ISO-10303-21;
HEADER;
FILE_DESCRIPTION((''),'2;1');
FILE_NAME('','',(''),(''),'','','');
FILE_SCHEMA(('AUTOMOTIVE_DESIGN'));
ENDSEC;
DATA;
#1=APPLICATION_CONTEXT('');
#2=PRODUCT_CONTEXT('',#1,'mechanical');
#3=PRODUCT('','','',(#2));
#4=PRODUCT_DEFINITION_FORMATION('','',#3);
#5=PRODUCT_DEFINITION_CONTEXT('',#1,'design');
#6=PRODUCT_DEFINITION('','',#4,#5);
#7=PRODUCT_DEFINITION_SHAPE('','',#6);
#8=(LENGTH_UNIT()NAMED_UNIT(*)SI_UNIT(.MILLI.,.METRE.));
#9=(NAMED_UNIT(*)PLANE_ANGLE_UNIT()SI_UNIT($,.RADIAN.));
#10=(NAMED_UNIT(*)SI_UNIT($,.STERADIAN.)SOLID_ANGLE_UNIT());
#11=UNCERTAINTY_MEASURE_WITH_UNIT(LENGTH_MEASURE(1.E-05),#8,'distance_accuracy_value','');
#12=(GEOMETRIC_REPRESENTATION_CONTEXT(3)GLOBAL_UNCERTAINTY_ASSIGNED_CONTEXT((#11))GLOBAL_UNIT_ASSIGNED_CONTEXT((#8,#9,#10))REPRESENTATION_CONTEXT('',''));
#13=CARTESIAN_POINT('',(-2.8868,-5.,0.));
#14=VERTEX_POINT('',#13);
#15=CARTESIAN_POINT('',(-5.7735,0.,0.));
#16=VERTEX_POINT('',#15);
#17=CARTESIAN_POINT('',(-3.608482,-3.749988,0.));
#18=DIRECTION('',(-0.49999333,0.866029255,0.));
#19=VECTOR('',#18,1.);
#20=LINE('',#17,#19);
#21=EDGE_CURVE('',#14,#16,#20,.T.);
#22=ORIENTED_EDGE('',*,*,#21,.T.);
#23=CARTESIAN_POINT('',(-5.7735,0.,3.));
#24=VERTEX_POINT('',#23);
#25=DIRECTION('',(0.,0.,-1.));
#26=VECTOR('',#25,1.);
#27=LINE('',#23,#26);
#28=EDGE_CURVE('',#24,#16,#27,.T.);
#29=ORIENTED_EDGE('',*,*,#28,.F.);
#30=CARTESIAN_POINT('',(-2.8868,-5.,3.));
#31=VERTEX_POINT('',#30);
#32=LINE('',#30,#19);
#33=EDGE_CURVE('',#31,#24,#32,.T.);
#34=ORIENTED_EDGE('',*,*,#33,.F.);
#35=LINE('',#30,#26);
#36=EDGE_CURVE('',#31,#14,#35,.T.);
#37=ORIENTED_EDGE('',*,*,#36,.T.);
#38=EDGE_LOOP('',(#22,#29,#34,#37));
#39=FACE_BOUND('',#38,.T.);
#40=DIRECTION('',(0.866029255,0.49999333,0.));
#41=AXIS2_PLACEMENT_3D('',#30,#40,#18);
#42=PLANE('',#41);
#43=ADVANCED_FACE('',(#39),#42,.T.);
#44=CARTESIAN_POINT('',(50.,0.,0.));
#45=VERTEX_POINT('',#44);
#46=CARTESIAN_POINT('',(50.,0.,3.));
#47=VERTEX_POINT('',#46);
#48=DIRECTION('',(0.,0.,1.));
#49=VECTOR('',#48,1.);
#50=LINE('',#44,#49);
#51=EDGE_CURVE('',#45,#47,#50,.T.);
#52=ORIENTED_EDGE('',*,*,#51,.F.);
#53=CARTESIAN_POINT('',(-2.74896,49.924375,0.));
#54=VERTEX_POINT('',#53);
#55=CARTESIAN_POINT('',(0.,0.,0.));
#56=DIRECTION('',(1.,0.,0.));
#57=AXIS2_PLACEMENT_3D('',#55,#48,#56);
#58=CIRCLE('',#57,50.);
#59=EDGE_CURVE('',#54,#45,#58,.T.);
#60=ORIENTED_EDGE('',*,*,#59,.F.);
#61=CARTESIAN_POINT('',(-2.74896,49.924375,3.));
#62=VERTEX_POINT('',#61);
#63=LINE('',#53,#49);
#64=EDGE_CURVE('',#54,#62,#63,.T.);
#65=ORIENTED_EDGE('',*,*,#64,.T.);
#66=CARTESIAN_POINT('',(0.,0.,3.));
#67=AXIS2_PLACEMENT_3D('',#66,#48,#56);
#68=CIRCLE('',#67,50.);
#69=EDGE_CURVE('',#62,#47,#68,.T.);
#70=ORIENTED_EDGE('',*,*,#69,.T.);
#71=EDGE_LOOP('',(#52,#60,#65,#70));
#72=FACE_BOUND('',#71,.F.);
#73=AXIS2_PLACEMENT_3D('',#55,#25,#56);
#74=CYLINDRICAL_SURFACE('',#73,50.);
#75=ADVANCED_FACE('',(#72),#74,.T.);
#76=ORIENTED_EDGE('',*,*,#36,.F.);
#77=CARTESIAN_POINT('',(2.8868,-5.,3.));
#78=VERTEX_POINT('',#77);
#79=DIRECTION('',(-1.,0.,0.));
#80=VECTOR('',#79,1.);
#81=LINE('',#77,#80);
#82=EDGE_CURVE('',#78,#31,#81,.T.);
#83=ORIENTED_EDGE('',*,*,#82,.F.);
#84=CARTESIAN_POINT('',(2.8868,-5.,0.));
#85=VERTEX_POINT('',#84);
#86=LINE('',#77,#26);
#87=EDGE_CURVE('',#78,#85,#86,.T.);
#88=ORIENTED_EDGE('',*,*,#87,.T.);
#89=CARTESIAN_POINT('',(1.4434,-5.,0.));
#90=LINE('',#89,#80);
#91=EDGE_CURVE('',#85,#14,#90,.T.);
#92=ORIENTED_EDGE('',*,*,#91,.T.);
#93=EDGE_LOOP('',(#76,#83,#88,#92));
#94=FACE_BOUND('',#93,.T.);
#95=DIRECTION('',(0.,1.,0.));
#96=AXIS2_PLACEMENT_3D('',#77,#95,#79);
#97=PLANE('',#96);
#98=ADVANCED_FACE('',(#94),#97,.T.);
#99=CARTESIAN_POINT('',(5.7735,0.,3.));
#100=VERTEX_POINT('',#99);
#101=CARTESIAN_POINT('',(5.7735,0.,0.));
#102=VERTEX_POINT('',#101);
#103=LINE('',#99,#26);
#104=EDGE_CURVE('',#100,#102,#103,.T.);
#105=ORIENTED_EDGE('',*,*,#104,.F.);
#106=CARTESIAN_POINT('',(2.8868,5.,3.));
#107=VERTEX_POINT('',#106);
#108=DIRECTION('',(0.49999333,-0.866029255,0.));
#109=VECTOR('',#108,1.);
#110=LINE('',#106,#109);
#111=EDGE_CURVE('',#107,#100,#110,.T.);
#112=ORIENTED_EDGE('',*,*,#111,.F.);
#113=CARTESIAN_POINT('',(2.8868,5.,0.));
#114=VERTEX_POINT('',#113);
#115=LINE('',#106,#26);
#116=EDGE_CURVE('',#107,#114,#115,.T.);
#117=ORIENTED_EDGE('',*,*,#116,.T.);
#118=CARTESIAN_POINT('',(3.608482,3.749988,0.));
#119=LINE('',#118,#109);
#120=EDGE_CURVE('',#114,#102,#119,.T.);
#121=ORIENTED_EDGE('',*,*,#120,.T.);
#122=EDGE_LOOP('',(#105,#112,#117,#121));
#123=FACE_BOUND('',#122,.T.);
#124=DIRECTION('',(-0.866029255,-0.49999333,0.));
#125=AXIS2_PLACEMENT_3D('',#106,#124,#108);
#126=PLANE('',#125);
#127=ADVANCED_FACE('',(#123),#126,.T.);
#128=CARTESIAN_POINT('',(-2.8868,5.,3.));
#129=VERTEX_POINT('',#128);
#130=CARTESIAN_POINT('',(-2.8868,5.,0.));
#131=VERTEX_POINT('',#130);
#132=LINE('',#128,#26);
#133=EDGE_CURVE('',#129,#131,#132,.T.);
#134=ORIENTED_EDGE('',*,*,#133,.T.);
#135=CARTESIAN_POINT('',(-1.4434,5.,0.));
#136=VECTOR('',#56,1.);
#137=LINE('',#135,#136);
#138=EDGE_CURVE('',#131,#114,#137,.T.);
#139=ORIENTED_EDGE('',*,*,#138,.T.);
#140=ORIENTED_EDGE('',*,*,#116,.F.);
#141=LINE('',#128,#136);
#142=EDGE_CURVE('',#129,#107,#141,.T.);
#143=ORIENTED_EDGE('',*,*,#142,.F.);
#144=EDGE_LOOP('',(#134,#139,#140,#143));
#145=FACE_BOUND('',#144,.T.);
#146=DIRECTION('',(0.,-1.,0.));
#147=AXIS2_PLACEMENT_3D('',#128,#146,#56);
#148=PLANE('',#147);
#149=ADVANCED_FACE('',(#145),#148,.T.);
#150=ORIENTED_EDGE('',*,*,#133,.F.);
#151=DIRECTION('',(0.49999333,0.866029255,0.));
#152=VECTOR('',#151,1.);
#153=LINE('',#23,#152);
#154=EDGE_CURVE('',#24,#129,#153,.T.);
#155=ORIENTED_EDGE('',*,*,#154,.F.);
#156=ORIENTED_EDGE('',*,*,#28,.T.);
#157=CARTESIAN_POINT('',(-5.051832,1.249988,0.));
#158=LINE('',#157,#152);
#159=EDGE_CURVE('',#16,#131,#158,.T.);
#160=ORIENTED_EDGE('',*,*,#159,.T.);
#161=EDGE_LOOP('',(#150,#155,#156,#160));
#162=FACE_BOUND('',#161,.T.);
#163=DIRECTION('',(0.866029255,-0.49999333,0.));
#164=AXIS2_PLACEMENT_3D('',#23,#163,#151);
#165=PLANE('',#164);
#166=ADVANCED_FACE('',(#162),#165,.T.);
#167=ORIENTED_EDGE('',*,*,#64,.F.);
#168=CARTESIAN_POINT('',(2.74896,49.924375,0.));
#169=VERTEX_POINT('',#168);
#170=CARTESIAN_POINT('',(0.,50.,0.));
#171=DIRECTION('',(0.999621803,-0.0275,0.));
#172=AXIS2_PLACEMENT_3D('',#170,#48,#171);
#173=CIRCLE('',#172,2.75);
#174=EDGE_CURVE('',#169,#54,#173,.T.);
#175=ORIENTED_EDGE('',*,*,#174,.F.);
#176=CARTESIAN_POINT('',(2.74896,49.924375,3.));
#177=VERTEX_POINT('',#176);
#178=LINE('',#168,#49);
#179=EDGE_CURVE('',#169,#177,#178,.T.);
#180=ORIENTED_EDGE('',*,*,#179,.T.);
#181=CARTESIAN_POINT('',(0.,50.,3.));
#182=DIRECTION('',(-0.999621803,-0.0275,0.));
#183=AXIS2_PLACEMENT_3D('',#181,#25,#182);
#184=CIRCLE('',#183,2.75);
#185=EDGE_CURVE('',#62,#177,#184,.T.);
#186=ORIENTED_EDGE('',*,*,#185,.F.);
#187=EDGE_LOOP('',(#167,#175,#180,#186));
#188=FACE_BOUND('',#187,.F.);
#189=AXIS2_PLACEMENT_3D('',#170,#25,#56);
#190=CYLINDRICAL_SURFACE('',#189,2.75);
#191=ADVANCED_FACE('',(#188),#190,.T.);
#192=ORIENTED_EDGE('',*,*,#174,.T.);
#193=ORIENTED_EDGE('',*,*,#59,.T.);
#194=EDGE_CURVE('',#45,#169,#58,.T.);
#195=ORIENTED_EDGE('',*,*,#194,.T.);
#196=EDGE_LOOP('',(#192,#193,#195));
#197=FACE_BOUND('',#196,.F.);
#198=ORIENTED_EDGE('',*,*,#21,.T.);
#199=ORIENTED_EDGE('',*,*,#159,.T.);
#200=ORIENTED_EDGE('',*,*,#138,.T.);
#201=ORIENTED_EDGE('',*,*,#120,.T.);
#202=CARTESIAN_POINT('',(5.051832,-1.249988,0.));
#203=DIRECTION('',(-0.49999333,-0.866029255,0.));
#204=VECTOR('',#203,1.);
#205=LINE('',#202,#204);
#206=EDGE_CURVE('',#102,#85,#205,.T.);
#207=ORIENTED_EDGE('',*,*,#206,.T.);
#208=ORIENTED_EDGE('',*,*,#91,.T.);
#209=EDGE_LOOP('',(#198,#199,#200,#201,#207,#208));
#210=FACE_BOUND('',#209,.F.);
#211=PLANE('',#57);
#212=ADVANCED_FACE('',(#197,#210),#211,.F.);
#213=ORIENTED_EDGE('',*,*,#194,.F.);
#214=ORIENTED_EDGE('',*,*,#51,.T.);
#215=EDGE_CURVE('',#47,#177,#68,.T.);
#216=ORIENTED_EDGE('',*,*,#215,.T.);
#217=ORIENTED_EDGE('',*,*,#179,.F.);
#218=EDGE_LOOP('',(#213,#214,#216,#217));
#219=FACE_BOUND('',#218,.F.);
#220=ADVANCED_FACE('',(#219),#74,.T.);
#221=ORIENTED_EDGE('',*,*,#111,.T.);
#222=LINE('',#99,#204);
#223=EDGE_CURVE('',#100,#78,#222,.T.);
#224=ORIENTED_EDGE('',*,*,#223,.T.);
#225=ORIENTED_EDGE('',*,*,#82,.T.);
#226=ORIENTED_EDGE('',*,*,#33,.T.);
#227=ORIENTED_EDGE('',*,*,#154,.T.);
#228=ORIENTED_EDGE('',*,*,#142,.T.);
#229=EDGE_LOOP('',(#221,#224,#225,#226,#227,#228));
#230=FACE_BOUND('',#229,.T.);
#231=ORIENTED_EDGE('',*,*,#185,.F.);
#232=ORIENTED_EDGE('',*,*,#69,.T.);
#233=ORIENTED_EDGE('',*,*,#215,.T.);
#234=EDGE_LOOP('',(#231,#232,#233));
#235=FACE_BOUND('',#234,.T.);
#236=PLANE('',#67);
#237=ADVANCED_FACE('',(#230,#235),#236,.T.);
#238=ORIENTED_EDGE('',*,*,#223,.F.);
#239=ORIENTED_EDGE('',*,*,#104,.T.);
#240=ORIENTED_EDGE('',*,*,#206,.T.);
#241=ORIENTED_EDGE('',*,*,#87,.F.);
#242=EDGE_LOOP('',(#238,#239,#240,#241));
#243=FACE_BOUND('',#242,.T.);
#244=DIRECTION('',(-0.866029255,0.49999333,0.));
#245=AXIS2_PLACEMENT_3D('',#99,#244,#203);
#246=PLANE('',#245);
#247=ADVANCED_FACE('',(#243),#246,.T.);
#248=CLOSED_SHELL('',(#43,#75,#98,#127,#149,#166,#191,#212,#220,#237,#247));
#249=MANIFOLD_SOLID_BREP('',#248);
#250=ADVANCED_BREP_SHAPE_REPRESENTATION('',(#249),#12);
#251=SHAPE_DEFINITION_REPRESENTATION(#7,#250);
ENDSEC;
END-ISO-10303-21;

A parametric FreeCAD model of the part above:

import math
import FreeCAD as App
import Part
import Sketcher
Q = App.Units.Quantity


def add_polygon(sketch, points):
    """Adds a closed chain of lines whose ends are joined by coincident constraints."""
    first, n = sketch.GeometryCount, len(points)
    for a, b in zip(points, points[1:] + points[:1]):
        sketch.addGeometry(Part.LineSegment(App.Vector(*a, 0), App.Vector(*b, 0)), False)
    for i in range(n):
        sketch.addConstraint(Sketcher.Constraint("Coincident", first + i, 2, first + (i + 1) % n, 1))

doc = App.newDocument("Part")
body = doc.addObject("PartDesign::Body", "Body")

# Sketch on XY plane
sketch1 = doc.addObject("Sketcher::SketchObject", "Sketch")
body.addObject(sketch1)
sketch1.AttachmentSupport = (doc.XY_Plane, [""])
sketch1.MapMode = "FlatFace"
sketch1.addGeometry([
    Part.ArcOfCircle(Part.Circle(App.Vector(0, 0, 0), App.Vector(0, 0, 1), 50), math.radians(93.151665), math.radians(446.848335)),
    Part.ArcOfCircle(Part.Circle(App.Vector(0, 50, 0), App.Vector(0, 0, 1), 2.75), math.radians(-1.575833), math.radians(181.575833)),
], False)
sketch1.addConstraint([
    Sketcher.Constraint("Coincident", 0, 1, 1, 2),
    Sketcher.Constraint("Coincident", 1, 1, 0, 2),
    Sketcher.Constraint("Coincident", 0, 3, -1, 1),
    Sketcher.Constraint("PointOnObject", 1, 3, -2),
    Sketcher.Constraint("Radius", 0, 50.0),
    Sketcher.Constraint("Radius", 1, 2.75),
    Sketcher.Constraint("DistanceY", -1, 1, 1, 3, 50.0),
])
pad1 = doc.addObject("PartDesign::Pad", "Pad")
body.addObject(pad1)
pad1.Profile = sketch1
pad1.Length = 3

# Sketch on XY plane
sketch2 = doc.addObject("Sketcher::SketchObject", "Sketch001")
body.addObject(sketch2)
sketch2.AttachmentSupport = (doc.XY_Plane, [""])
sketch2.MapMode = "FlatFace"
sketch2.AttachmentOffset = App.Placement(App.Vector(0, 0, 3), App.Rotation())
add_polygon(sketch2, [(-2.8868, 5), (-5.7735, 0), (-2.8868, -5), (2.8868, -5), (5.7735, 0), (2.8868, 5)])  # lines 0-5
sketch2.addConstraint([
    Sketcher.Constraint("Horizontal", 2),
    Sketcher.Constraint("Horizontal", 5),
    Sketcher.Constraint("Symmetric", 0, 2, 3, 2, -1, 1),
    Sketcher.Constraint("Symmetric", 1, 2, 4, 2, -1, 1),
    Sketcher.Constraint("PointOnObject", 0, 2, -1),
    Sketcher.Constraint("Parallel", 0, 3),
    Sketcher.Constraint("Vertical", 2, 2, 4, 2),
    Sketcher.Constraint("DistanceY", 2, 2, 4, 2, 10.0),
    Sketcher.Constraint("Angle", 0, Q("-119.9996 deg")),
    Sketcher.Constraint("DistanceX", 2, 1, 2, 2, 5.7736),
])
pocket1 = doc.addObject("PartDesign::Pocket", "Pocket")
body.addObject(pocket1)
pocket1.Profile = sketch2
pocket1.Type = "ThroughAll"

doc.recompute()
